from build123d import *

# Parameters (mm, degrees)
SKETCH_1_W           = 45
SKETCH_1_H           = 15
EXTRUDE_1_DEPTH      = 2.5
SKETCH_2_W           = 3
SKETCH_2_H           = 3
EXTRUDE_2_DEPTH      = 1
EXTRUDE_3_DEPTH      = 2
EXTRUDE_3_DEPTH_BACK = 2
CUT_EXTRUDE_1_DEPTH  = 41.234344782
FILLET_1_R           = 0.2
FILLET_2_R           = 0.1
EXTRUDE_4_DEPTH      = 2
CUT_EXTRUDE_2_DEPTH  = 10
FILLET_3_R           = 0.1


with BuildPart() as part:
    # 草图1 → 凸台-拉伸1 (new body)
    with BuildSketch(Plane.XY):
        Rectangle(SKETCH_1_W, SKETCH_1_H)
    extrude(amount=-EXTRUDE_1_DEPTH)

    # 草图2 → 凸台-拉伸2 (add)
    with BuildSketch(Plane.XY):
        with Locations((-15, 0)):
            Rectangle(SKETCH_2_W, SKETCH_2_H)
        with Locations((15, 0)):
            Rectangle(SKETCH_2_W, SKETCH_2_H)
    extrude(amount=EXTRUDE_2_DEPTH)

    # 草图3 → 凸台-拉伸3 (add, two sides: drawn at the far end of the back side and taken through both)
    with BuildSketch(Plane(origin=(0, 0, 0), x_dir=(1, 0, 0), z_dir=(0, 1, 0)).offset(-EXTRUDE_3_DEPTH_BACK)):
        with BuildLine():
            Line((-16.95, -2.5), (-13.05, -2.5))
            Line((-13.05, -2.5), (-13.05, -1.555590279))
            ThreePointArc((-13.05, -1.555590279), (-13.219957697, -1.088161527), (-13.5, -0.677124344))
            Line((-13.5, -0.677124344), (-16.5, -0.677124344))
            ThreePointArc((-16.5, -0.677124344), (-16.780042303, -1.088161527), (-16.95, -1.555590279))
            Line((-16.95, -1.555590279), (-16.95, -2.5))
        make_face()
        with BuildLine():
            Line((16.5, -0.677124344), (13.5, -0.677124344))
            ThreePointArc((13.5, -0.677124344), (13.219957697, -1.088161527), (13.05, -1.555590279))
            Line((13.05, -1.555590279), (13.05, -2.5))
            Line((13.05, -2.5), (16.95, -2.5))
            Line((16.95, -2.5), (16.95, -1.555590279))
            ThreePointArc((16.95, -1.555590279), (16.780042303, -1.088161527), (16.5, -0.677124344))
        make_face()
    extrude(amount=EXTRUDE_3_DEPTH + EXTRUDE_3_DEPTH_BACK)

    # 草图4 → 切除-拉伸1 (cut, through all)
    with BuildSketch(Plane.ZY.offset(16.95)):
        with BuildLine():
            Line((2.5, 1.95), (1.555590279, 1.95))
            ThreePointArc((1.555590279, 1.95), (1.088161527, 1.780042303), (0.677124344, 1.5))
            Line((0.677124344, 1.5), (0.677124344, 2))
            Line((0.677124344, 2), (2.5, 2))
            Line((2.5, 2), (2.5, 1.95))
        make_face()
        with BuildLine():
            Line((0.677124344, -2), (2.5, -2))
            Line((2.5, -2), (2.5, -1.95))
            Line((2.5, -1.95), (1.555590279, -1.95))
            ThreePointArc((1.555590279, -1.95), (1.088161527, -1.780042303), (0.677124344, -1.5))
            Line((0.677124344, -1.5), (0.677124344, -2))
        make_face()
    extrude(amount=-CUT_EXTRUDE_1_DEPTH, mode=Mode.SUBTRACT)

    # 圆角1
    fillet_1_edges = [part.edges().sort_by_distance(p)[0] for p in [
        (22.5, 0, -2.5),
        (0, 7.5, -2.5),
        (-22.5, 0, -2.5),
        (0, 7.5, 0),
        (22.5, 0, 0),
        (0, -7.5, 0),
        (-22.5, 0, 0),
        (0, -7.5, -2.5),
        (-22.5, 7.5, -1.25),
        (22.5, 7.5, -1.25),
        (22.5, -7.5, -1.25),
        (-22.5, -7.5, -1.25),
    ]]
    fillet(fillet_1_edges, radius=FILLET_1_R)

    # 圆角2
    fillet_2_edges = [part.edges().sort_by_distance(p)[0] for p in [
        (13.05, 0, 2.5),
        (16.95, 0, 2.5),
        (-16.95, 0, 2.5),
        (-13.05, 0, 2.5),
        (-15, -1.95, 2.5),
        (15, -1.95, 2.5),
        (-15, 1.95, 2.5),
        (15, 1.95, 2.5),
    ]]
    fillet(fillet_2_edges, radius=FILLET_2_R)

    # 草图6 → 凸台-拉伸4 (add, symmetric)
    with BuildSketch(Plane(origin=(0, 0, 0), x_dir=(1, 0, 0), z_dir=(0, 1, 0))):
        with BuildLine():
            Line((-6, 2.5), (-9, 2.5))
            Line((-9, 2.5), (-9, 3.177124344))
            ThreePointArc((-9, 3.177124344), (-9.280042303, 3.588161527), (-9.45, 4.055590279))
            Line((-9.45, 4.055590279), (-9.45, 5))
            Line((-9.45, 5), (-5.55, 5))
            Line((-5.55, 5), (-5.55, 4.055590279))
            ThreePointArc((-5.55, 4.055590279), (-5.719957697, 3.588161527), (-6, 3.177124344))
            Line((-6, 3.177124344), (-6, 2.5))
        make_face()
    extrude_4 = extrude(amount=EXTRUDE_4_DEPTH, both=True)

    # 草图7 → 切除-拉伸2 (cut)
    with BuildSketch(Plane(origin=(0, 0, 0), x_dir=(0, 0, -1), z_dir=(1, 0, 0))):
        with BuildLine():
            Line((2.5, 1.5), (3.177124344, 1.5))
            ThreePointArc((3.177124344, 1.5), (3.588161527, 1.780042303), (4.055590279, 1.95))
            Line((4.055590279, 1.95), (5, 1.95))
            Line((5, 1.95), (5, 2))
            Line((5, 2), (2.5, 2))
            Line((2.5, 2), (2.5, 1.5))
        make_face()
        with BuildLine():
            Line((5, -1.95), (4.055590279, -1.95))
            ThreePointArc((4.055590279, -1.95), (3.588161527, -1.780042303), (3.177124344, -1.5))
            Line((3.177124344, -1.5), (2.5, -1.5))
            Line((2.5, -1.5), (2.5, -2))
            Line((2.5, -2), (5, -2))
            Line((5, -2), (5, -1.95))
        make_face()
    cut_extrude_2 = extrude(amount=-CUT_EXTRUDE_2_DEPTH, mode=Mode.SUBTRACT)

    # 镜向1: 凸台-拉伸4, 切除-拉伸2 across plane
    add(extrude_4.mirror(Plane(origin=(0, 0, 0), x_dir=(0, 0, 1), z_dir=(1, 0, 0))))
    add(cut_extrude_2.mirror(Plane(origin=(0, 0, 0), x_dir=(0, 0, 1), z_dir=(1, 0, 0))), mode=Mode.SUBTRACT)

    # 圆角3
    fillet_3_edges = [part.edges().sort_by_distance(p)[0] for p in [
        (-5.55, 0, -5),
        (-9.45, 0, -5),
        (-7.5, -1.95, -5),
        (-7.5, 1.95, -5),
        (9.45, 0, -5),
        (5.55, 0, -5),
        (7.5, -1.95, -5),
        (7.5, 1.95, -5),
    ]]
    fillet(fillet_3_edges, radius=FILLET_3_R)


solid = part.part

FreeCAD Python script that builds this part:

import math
import FreeCAD as App
import Part
import Sketcher

V = App.Vector
Q = App.Units.Quantity


def edges_at(feature, points):
    """Names of the edges that pass closest to the given points."""
    edges = feature.Shape.Edges
    near = lambda p: min(range(len(edges)), key=lambda i: edges[i].distToShape(Part.Vertex(*p))[0])
    return sorted({f"Edge{near(p) + 1}" for p in points})

doc = App.newDocument("Part")
body = doc.addObject("PartDesign::Body", "Body")

# Sketch on XY plane
sketch1 = body.newObject("Sketcher::SketchObject", "Sketch")
sketch1.AttachmentSupport = (doc.getObject("XY_Plane"), [""])
sketch1.MapMode = "FlatFace"
sketch1.addGeometry(Part.LineSegment(V(-22, 8, 0), V(-22, -8, 0)), False)
sketch1.addGeometry(Part.LineSegment(V(-22, -8, 0), V(22, -8, 0)), False)
sketch1.addGeometry(Part.LineSegment(V(22, -8, 0), V(22, 8, 0)), False)
sketch1.addGeometry(Part.LineSegment(V(22, 8, 0), V(-22, 8, 0)), False)
sketch1.addConstraint(Sketcher.Constraint("Coincident", 0, 2, 1, 1))
sketch1.addConstraint(Sketcher.Constraint("Coincident", 1, 2, 2, 1))
sketch1.addConstraint(Sketcher.Constraint("Coincident", 2, 2, 3, 1))
sketch1.addConstraint(Sketcher.Constraint("Coincident", 3, 2, 0, 1))
sketch1.addConstraint(Sketcher.Constraint("Vertical", 0))
sketch1.addConstraint(Sketcher.Constraint("Horizontal", 1))
sketch1.addConstraint(Sketcher.Constraint("Vertical", 2))
sketch1.addConstraint(Sketcher.Constraint("Horizontal", 3))
sketch1.addConstraint(Sketcher.Constraint("Symmetric", 0, 2, 2, 2, -1, 1))
sketch1.addConstraint(Sketcher.Constraint("DistanceX", 1, 1, 1, 2, Q("45 mm")))
sketch1.addConstraint(Sketcher.Constraint("DistanceY", 0, 2, 0, 1, Q("15 mm")))
pad1 = body.newObject("PartDesign::Pad", "Pad")
pad1.Profile = sketch1
pad1.Length = 2.5
pad1.Reversed = True

# Sketch on XY plane
sketch2 = body.newObject("Sketcher::SketchObject", "Sketch001")
sketch2.AttachmentSupport = (doc.getObject("XY_Plane"), [""])
sketch2.MapMode = "FlatFace"
sketch2.addGeometry(Part.LineSegment(V(-16.5, 1.5, 0), V(-16.5, -1.5, 0)), False)
sketch2.addGeometry(Part.LineSegment(V(-16.5, -1.5, 0), V(-13.5, -1.5, 0)), False)
sketch2.addGeometry(Part.LineSegment(V(-13.5, -1.5, 0), V(-13.5, 1.5, 0)), False)
sketch2.addGeometry(Part.LineSegment(V(-13.5, 1.5, 0), V(-16.5, 1.5, 0)), False)
sketch2.addGeometry(Part.LineSegment(V(13.5, 1.5, 0), V(13.5, -1.5, 0)), False)
sketch2.addGeometry(Part.LineSegment(V(13.5, -1.5, 0), V(16.5, -1.5, 0)), False)
sketch2.addGeometry(Part.LineSegment(V(16.5, -1.5, 0), V(16.5, 1.5, 0)), False)
sketch2.addGeometry(Part.LineSegment(V(16.5, 1.5, 0), V(13.5, 1.5, 0)), False)
sketch2.addConstraint(Sketcher.Constraint("Coincident", 0, 2, 1, 1))
sketch2.addConstraint(Sketcher.Constraint("Coincident", 1, 2, 2, 1))
sketch2.addConstraint(Sketcher.Constraint("Coincident", 2, 2, 3, 1))
sketch2.addConstraint(Sketcher.Constraint("Coincident", 3, 2, 0, 1))
sketch2.addConstraint(Sketcher.Constraint("Coincident", 4, 2, 5, 1))
sketch2.addConstraint(Sketcher.Constraint("Coincident", 5, 2, 6, 1))
sketch2.addConstraint(Sketcher.Constraint("Coincident", 6, 2, 7, 1))
sketch2.addConstraint(Sketcher.Constraint("Coincident", 7, 2, 4, 1))
sketch2.addConstraint(Sketcher.Constraint("Vertical", 0))
sketch2.addConstraint(Sketcher.Constraint("Horizontal", 1))
sketch2.addConstraint(Sketcher.Constraint("Vertical", 2))
sketch2.addConstraint(Sketcher.Constraint("Horizontal", 3))
sketch2.addConstraint(Sketcher.Constraint("Vertical", 4))
sketch2.addConstraint(Sketcher.Constraint("Horizontal", 5))
sketch2.addConstraint(Sketcher.Constraint("Vertical", 6))
sketch2.addConstraint(Sketcher.Constraint("Horizontal", 7))
sketch2.addConstraint(Sketcher.Constraint("Symmetric", 2, 2, 4, 2, -1, 1))
sketch2.addConstraint(Sketcher.Constraint("Symmetric", 0, 2, 6, 2, -1, 1))
sketch2.addConstraint(Sketcher.Constraint("Horizontal", 1, 2, 4, 2))
sketch2.addConstraint(Sketcher.Constraint("Equal", 7, 0))
sketch2.addConstraint(Sketcher.Constraint("DistanceX", 1, 1, 1, 2, Q("3 mm")))
sketch2.addConstraint(Sketcher.Constraint("DistanceX", 1, 2, 4, 2, Q("27 mm")))
pad2 = body.newObject("PartDesign::Pad", "Pad001")
pad2.Profile = sketch2
pad2.Length = 1

# Sketch on XZ plane
sketch3 = body.newObject("Sketcher::SketchObject", "Sketch002")
sketch3.AttachmentSupport = (doc.getObject("XZ_Plane"), [""])
sketch3.MapMode = "FlatFace"
sketch3.addGeometry(Part.LineSegment(V(-16.9, 2.5, 0), V(-13.1, 2.5, 0)), False)
sketch3.addGeometry(Part.LineSegment(V(-13.1, 2.5, 0), V(-13.1, 1.6, 0)), False)
sketch3.addGeometry(Part.ArcOfCircle(Part.Circle(V(-15, 2, 0), V(0, 0, 1), 2), math.radians(-41), math.radians(-13)), False)
sketch3.addGeometry(Part.LineSegment(V(-13.5, 0.7, 0), V(-16.5, 0.7, 0)), False)
sketch3.addGeometry(Part.ArcOfCircle(Part.Circle(V(-15, 2, 0), V(0, 0, 1), 2), math.radians(-167), math.radians(-139)), False)
sketch3.addGeometry(Part.LineSegment(V(-16.9, 1.6, 0), V(-16.9, 2.5, 0)), False)
sketch3.addGeometry(Part.LineSegment(V(16.5, 0.7, 0), V(13.5, 0.7, 0)), False)
sketch3.addGeometry(Part.ArcOfCircle(Part.Circle(V(15, 2, 0), V(0, 0, 1), 2), math.radians(-167), math.radians(-139)), False)
sketch3.addGeometry(Part.LineSegment(V(13.1, 1.6, 0), V(13.1, 2.5, 0)), False)
sketch3.addGeometry(Part.LineSegment(V(13.1, 2.5, 0), V(16.9, 2.5, 0)), False)
sketch3.addGeometry(Part.LineSegment(V(16.9, 2.5, 0), V(16.9, 1.6, 0)), False)
sketch3.addGeometry(Part.ArcOfCircle(Part.Circle(V(15, 2, 0), V(0, 0, 1), 2), math.radians(-41), math.radians(-13)), False)
sketch3.addConstraint(Sketcher.Constraint("Coincident", 0, 2, 1, 1))
sketch3.addConstraint(Sketcher.Constraint("Coincident", 1, 2, 2, 2))
sketch3.addConstraint(Sketcher.Constraint("Coincident", 2, 1, 3, 1))
sketch3.addConstraint(Sketcher.Constraint("Coincident", 3, 2, 4, 2))
sketch3.addConstraint(Sketcher.Constraint("Coincident", 4, 1, 5, 1))
sketch3.addConstraint(Sketcher.Constraint("Coincident", 5, 2, 0, 1))
sketch3.addConstraint(Sketcher.Constraint("Coincident", 6, 2, 7, 2))
sketch3.addConstraint(Sketcher.Constraint("Coincident", 7, 1, 8, 1))
sketch3.addConstraint(Sketcher.Constraint("Coincident", 8, 2, 9, 1))
sketch3.addConstraint(Sketcher.Constraint("Coincident", 9, 2, 10, 1))
sketch3.addConstraint(Sketcher.Constraint("Coincident", 10, 2, 11, 2))
sketch3.addConstraint(Sketcher.Constraint("Coincident", 11, 1, 6, 1))
sketch3.addConstraint(Sketcher.Constraint("Horizontal", 0))
sketch3.addConstraint(Sketcher.Constraint("Vertical", 1))
sketch3.addConstraint(Sketcher.Constraint("Horizontal", 3))
sketch3.addConstraint(Sketcher.Constraint("Vertical", 5))
sketch3.addConstraint(Sketcher.Constraint("Horizontal", 6))
sketch3.addConstraint(Sketcher.Constraint("Vertical", 8))
sketch3.addConstraint(Sketcher.Constraint("Horizontal", 9))
sketch3.addConstraint(Sketcher.Constraint("Vertical", 10))
sketch3.addConstraint(Sketcher.Constraint("Coincident", 4, 3, 2, 3))
sketch3.addConstraint(Sketcher.Constraint("Coincident", 11, 3, 7, 3))
sketch3.addConstraint(Sketcher.Constraint("Equal", 2, 4))
sketch3.addConstraint(Sketcher.Constraint("Equal", 4, 7))
sketch3.addConstraint(Sketcher.Constraint("Equal", 7, 11))
sketch3.addConstraint(Sketcher.Constraint("Symmetric", 2, 3, 7, 3, -2))
sketch3.addConstraint(Sketcher.Constraint("Symmetric", 0, 2, 8, 2, -2))
sketch3.addConstraint(Sketcher.Constraint("Horizontal", 1, 2, 4, 1))
sketch3.addConstraint(Sketcher.Constraint("Horizontal", 3, 2, 6, 2))
sketch3.addConstraint(Sketcher.Constraint("Horizontal", 7, 1, 10, 2))
sketch3.addConstraint(Sketcher.Constraint("Radius", 2, Q("2 mm")))
sketch3.addConstraint(Sketcher.Constraint("DistanceX", 3, 2, 3, 1, Q("3 mm")))
sketch3.addConstraint(Sketcher.Constraint("DistanceX", 0, 1, 0, 2, Q("3.9 mm")))
sketch3.addConstraint(Sketcher.Constraint("DistanceX", 2, 3, -1, 1, Q("15 mm")))
sketch3.addConstraint(Sketcher.Constraint("DistanceY", -1, 1, 2, 3, Q("2 mm")))
sketch3.addConstraint(Sketcher.Constraint("DistanceY", -1, 1, 0, 2, Q("2.5 mm")))
pad3 = body.newObject("PartDesign::Pad", "Pad002")
pad3.Profile = sketch3
pad3.Type = "TwoLengths"
pad3.Length = 2
pad3.Length2 = 2
pad3.Reversed = True

# Sketch on YZ plane
sketch4 = body.newObject("Sketcher::SketchObject", "Sketch003")
sketch4.AttachmentSupport = (doc.getObject("YZ_Plane"), [""])
sketch4.MapMode = "FlatFace"
sketch4.AttachmentOffset = App.Placement(V(0, 0, -16.95), App.Rotation())
sketch4.addGeometry(Part.LineSegment(V(1.95, 1.56, 0), V(1.95, 2.5, 0)), False)
sketch4.addGeometry(Part.LineSegment(V(1.95, 2.5, 0), V(2, 2.5, 0)), False)
sketch4.addGeometry(Part.LineSegment(V(2, 2.5, 0), V(2, 0.68, 0)), False)
sketch4.addGeometry(Part.LineSegment(V(2, 0.68, 0), V(1.5, 0.68, 0)), False)
sketch4.addGeometry(Part.ArcOfCircle(Part.Circle(V(0, 2, 0), V(0, 0, 1), 2), math.radians(-41), math.radians(-13)), False)
sketch4.addGeometry(Part.LineSegment(V(-2, 0.68, 0), V(-2, 2.5, 0)), False)
sketch4.addGeometry(Part.LineSegment(V(-2, 2.5, 0), V(-1.95, 2.5, 0)), False)
sketch4.addGeometry(Part.LineSegment(V(-1.95, 2.5, 0), V(-1.95, 1.56, 0)), False)
sketch4.addGeometry(Part.ArcOfCircle(Part.Circle(V(0, 2, 0), V(0, 0, 1), 2), math.radians(-167), math.radians(-139)), False)
sketch4.addGeometry(Part.LineSegment(V(-1.5, 0.68, 0), V(-2, 0.68, 0)), False)
sketch4.addConstraint(Sketcher.Constraint("Coincident", 0, 2, 1, 1))
sketch4.addConstraint(Sketcher.Constraint("Coincident", 1, 2, 2, 1))
sketch4.addConstraint(Sketcher.Constraint("Coincident", 2, 2, 3, 1))
sketch4.addConstraint(Sketcher.Constraint("Coincident", 3, 2, 4, 1))
sketch4.addConstraint(Sketcher.Constraint("Coincident", 4, 2, 0, 1))
sketch4.addConstraint(Sketcher.Constraint("Coincident", 5, 2, 6, 1))
sketch4.addConstraint(Sketcher.Constraint("Coincident", 6, 2, 7, 1))
sketch4.addConstraint(Sketcher.Constraint("Coincident", 7, 2, 8, 1))
sketch4.addConstraint(Sketcher.Constraint("Coincident", 8, 2, 9, 1))
sketch4.addConstraint(Sketcher.Constraint("Coincident", 9, 2, 5, 1))
sketch4.addConstraint(Sketcher.Constraint("Vertical", 0))
sketch4.addConstraint(Sketcher.Constraint("Horizontal", 1))
sketch4.addConstraint(Sketcher.Constraint("Vertical", 2))
sketch4.addConstraint(Sketcher.Constraint("Horizontal", 3))
sketch4.addConstraint(Sketcher.Constraint("Vertical", 5))
sketch4.addConstraint(Sketcher.Constraint("Horizontal", 6))
sketch4.addConstraint(Sketcher.Constraint("Vertical", 7))
sketch4.addConstraint(Sketcher.Constraint("Horizontal", 9))
sketch4.addConstraint(Sketcher.Constraint("Coincident", 8, 3, 4, 3))
sketch4.addConstraint(Sketcher.Constraint("Equal", 4, 8))
sketch4.addConstraint(Sketcher.Constraint("Symmetric", 1, 2, 5, 2, -2))
sketch4.addConstraint(Sketcher.Constraint("Symmetric", 4, 2, 7, 2, -2))
sketch4.addConstraint(Sketcher.Constraint("Horizontal", 3, 2, 8, 2))
sketch4.addConstraint(Sketcher.Constraint("Radius", 4, Q("2 mm")))
sketch4.addConstraint(Sketcher.Constraint("DistanceX", 3, 2, 3, 1, Q("0.5 mm")))
sketch4.addConstraint(Sketcher.Constraint("DistanceY", -1, 1, 4, 3, Q("2 mm")))
sketch4.addConstraint(Sketcher.Constraint("DistanceX", -1, 1, 1, 2, Q("2 mm")))
sketch4.addConstraint(Sketcher.Constraint("DistanceX", 1, 1, 1, 2, Q("0.05 mm")))
sketch4.addConstraint(Sketcher.Constraint("DistanceY", -1, 1, 0, 2, Q("2.5 mm")))
pocket1 = body.newObject("PartDesign::Pocket", "Pocket")
pocket1.Profile = sketch4
pocket1.Type = "ThroughAll"
pocket1.Reversed = True
doc.recompute()

fillet = body.newObject("PartDesign::Fillet", "Fillet")
fillet.Base = (pocket1, edges_at(pocket1, [
    (22.5, 0, -2.5),
    (0, 7.5, -2.5),
    (-22.5, 0, -2.5),
    (0, 7.5, 0),
    (22.5, 0, 0),
    (0, -7.5, 0),
    (-22.5, 0, 0),
    (0, -7.5, -2.5),
    (-22.5, 7.5, -1.25),
    (22.5, 7.5, -1.25),
    (22.5, -7.5, -1.25),
    (-22.5, -7.5, -1.25),
]))
fillet.Radius = 0.2
doc.recompute()

fillet2 = body.newObject("PartDesign::Fillet", "Fillet001")
fillet2.Base = (fillet, edges_at(fillet, [
    (13.05, 0, 2.5),
    (16.95, 0, 2.5),
    (-16.95, 0, 2.5),
    (-13.05, 0, 2.5),
    (-15, -1.95, 2.5),
    (15, -1.95, 2.5),
    (-15, 1.95, 2.5),
    (15, 1.95, 2.5),
]))
fillet2.Radius = 0.1

# Sketch on XZ plane
sketch5 = body.newObject("Sketcher::SketchObject", "Sketch004")
sketch5.AttachmentSupport = (doc.getObject("XZ_Plane"), [""])
sketch5.MapMode = "FlatFace"
sketch5.addGeometry(Part.LineSegment(V(-9, -2.5, 0), V(-6, -2.5, 0)), False)
sketch5.addGeometry(Part.LineSegment(V(-6, -2.5, 0), V(-6, -3.2, 0)), False)
sketch5.addGeometry(Part.ArcOfCircle(Part.Circle(V(-7.5, -4.5, 0), V(0, 0, 1), 2), math.radians(13), math.radians(41)), False)
sketch5.addGeometry(Part.LineSegment(V(-5.5, -4.1, 0), V(-5.5, -5, 0)), False)
sketch5.addGeometry(Part.LineSegment(V(-5.5, -5, 0), V(-9.4, -5, 0)), False)
sketch5.addGeometry(Part.LineSegment(V(-9.4, -5, 0), V(-9.4, -4.1, 0)), False)
sketch5.addGeometry(Part.ArcOfCircle(Part.Circle(V(-7.5, -4.5, 0), V(0, 0, 1), 2), math.radians(139), math.radians(167)), False)
sketch5.addGeometry(Part.LineSegment(V(-9, -3.2, 0), V(-9, -2.5, 0)), False)
sketch5.addConstraint(Sketcher.Constraint("Coincident", 0, 2, 1, 1))
sketch5.addConstraint(Sketcher.Constraint("Coincident", 1, 2, 2, 2))
sketch5.addConstraint(Sketcher.Constraint("Coincident", 2, 1, 3, 1))
sketch5.addConstraint(Sketcher.Constraint("Coincident", 3, 2, 4, 1))
sketch5.addConstraint(Sketcher.Constraint("Coincident", 4, 2, 5, 1))
sketch5.addConstraint(Sketcher.Constraint("Coincident", 5, 2, 6, 2))
sketch5.addConstraint(Sketcher.Constraint("Coincident", 6, 1, 7, 1))
sketch5.addConstraint(Sketcher.Constraint("Coincident", 7, 2, 0, 1))
sketch5.addConstraint(Sketcher.Constraint("Horizontal", 0))
sketch5.addConstraint(Sketcher.Constraint("Vertical", 1))
sketch5.addConstraint(Sketcher.Constraint("Vertical", 3))
sketch5.addConstraint(Sketcher.Constraint("Horizontal", 4))
sketch5.addConstraint(Sketcher.Constraint("Vertical", 5))
sketch5.addConstraint(Sketcher.Constraint("Vertical", 7))
sketch5.addConstraint(Sketcher.Constraint("Coincident", 6, 3, 2, 3))
sketch5.addConstraint(Sketcher.Constraint("Equal", 2, 6))
sketch5.addConstraint(Sketcher.Constraint("Horizontal", 2, 1, 5, 2))
sketch5.addConstraint(Sketcher.Constraint("Horizontal", 1, 2, 6, 1))
sketch5.addConstraint(Sketcher.Constraint("Radius", 2, Q("2 mm")))
sketch5.addConstraint(Sketcher.Constraint("DistanceX", 0, 1, 0, 2, Q("3 mm")))
sketch5.addConstraint(Sketcher.Constraint("DistanceX", 4, 2, 4, 1, Q("3.9 mm")))
sketch5.addConstraint(Sketcher.Constraint("DistanceX", 0, 2, -1, 1, Q("6 mm")))
sketch5.addConstraint(Sketcher.Constraint("DistanceY", 3, 2, -1, 1, Q("5 mm")))
sketch5.addConstraint(Sketcher.Constraint("DistanceY", 2, 3, 0, 2, Q("2 mm")))
sketch5.addConstraint(Sketcher.Constraint("DistanceY", 2, 3, -1, 1, Q("4.5 mm")))
pad4 = body.newObject("PartDesign::Pad", "Pad003")
pad4.Profile = sketch5
pad4.Length = 4
pad4.Midplane = True

# Sketch on YZ plane
sketch6 = body.newObject("Sketcher::SketchObject", "Sketch005")
sketch6.AttachmentSupport = (doc.getObject("YZ_Plane"), [""])
sketch6.MapMode = "FlatFace"
sketch6.addGeometry(Part.LineSegment(V(1.5, -2.5, 0), V(1.5, -3.18, 0)), False)
sketch6.addGeometry(Part.ArcOfCircle(Part.Circle(V(0, -4.5, 0), V(0, 0, 1), 2), math.radians(13), math.radians(41)), False)
sketch6.addGeometry(Part.LineSegment(V(1.95, -4.06, 0), V(1.95, -5, 0)), False)
sketch6.addGeometry(Part.LineSegment(V(1.95, -5, 0), V(2, -5, 0)), False)
sketch6.addGeometry(Part.LineSegment(V(2, -5, 0), V(2, -2.5, 0)), False)
sketch6.addGeometry(Part.LineSegment(V(2, -2.5, 0), V(1.5, -2.5, 0)), False)
sketch6.addGeometry(Part.LineSegment(V(-1.95, -5, 0), V(-1.95, -4.06, 0)), False)
sketch6.addGeometry(Part.ArcOfCircle(Part.Circle(V(0, -4.5, 0), V(0, 0, 1), 2), math.radians(139), math.radians(167)), False)
sketch6.addGeometry(Part.LineSegment(V(-1.5, -3.18, 0), V(-1.5, -2.5, 0)), False)
sketch6.addGeometry(Part.LineSegment(V(-1.5, -2.5, 0), V(-2, -2.5, 0)), False)
sketch6.addGeometry(Part.LineSegment(V(-2, -2.5, 0), V(-2, -5, 0)), False)
sketch6.addGeometry(Part.LineSegment(V(-2, -5, 0), V(-1.95, -5, 0)), False)
sketch6.addConstraint(Sketcher.Constraint("Coincident", 0, 2, 1, 2))
sketch6.addConstraint(Sketcher.Constraint("Coincident", 1, 1, 2, 1))
sketch6.addConstraint(Sketcher.Constraint("Coincident", 2, 2, 3, 1))
sketch6.addConstraint(Sketcher.Constraint("Coincident", 3, 2, 4, 1))
sketch6.addConstraint(Sketcher.Constraint("Coincident", 4, 2, 5, 1))
sketch6.addConstraint(Sketcher.Constraint("Coincident", 5, 2, 0, 1))
sketch6.addConstraint(Sketcher.Constraint("Coincident", 6, 2, 7, 2))
sketch6.addConstraint(Sketcher.Constraint("Coincident", 7, 1, 8, 1))
sketch6.addConstraint(Sketcher.Constraint("Coincident", 8, 2, 9, 1))
sketch6.addConstraint(Sketcher.Constraint("Coincident", 9, 2, 10, 1))
sketch6.addConstraint(Sketcher.Constraint("Coincident", 10, 2, 11, 1))
sketch6.addConstraint(Sketcher.Constraint("Coincident", 11, 2, 6, 1))
sketch6.addConstraint(Sketcher.Constraint("Vertical", 0))
sketch6.addConstraint(Sketcher.Constraint("Vertical", 2))
sketch6.addConstraint(Sketcher.Constraint("Horizontal", 3))
sketch6.addConstraint(Sketcher.Constraint("Vertical", 4))
sketch6.addConstraint(Sketcher.Constraint("Horizontal", 5))
sketch6.addConstraint(Sketcher.Constraint("Vertical", 6))
sketch6.addConstraint(Sketcher.Constraint("Vertical", 8))
sketch6.addConstraint(Sketcher.Constraint("Horizontal", 9))
sketch6.addConstraint(Sketcher.Constraint("Vertical", 10))
sketch6.addConstraint(Sketcher.Constraint("Horizontal", 11))
sketch6.addConstraint(Sketcher.Constraint("Coincident", 7, 3, 1, 3))
sketch6.addConstraint(Sketcher.Constraint("Equal", 1, 7))
sketch6.addConstraint(Sketcher.Constraint("Symmetric", 1, 1, 6, 2, -2))
sketch6.addConstraint(Sketcher.Constraint("Symmetric", 5, 2, 8, 2, -2))
sketch6.addConstraint(Sketcher.Constraint("Symmetric", 3, 2, 10, 2, -2))
sketch6.addConstraint(Sketcher.Constraint("Radius", 1, Q("2 mm")))
sketch6.addConstraint(Sketcher.Constraint("DistanceX", 5, 2, 5, 1, Q("0.5 mm")))
sketch6.addConstraint(Sketcher.Constraint("DistanceY", 4, 1, 4, 2, Q("2.5 mm")))
sketch6.addConstraint(Sketcher.Constraint("DistanceY", 2, 2, -1, 1, Q("5 mm")))
sketch6.addConstraint(Sketcher.Constraint("DistanceX", -1, 1, 3, 2, Q("2 mm")))
sketch6.addConstraint(Sketcher.Constraint("DistanceY", 1, 3, 4, 2, Q("2 mm")))
sketch6.addConstraint(Sketcher.Constraint("DistanceX", 3, 1, 3, 2, Q("0.05 mm")))
pocket2 = body.newObject("PartDesign::Pocket", "Pocket001")
pocket2.Profile = sketch6
pocket2.Length = 10
doc.recompute()

mirrored = body.newObject("PartDesign::Mirrored", "Mirrored")
mirrored.Originals = [pad4, pocket2]
mirrored.MirrorPlane = (doc.getObject("YZ_Plane"), [""])
body.Tip = mirrored
doc.recompute()

fillet3 = body.newObject("PartDesign::Fillet", "Fillet002")
fillet3.Base = (mirrored, edges_at(mirrored, [
    (-5.55, 0, -5),
    (-9.45, 0, -5),
    (-7.5, -1.95, -5),
    (-7.5, 1.95, -5),
    (9.45, 0, -5),
    (5.55, 0, -5),
    (7.5, -1.95, -5),
    (7.5, 1.95, -5),
]))
fillet3.Radius = 0.1

doc.recompute()
